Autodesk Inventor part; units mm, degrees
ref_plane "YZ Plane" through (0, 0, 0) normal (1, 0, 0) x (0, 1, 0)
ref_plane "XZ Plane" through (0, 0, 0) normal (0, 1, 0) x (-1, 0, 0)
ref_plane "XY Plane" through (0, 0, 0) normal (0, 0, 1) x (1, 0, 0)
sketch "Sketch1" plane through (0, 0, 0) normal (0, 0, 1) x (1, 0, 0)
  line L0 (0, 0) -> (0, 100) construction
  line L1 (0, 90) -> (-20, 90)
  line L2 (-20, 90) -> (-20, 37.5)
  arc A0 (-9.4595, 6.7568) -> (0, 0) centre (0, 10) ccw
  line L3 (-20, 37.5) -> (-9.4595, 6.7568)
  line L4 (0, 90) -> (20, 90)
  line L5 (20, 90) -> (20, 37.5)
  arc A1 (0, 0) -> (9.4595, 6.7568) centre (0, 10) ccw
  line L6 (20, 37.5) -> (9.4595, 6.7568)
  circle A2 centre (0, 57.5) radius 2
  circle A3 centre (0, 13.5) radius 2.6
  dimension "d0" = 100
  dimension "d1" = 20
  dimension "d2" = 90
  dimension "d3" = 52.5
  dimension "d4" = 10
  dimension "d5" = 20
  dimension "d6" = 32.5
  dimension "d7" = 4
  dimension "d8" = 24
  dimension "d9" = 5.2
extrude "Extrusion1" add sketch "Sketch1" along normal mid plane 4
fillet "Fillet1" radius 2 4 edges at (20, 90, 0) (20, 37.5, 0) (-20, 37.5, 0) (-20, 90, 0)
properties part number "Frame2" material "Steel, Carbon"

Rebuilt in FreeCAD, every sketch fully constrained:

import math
import FreeCAD as App
import Part
import Sketcher
from FreeCAD import Vector


def edges_at(feature, points):
    """Names of the edges that pass closest to the given points."""
    edges = feature.Shape.Edges
    near = lambda p: min(range(len(edges)), key=lambda i: edges[i].distToShape(Part.Vertex(*p))[0])
    return sorted({f"Edge{near(p) + 1}" for p in points})

doc = App.newDocument("Part")
params = doc.addObject("Spreadsheet::Sheet", "Params")
for row, (alias, value) in enumerate([
    ("sketch1_diameter", "4 mm"),
    ("sketch1_radius", "10 mm"),
    ("sketch1_diameter2", "5.2 mm"),
    ("sketch1_height", "52.5 mm"),
    ("pad1_length", "4 mm"),
    ("fillet_radius", "2 mm"),
], start=1):
    params.set(f"A{row}", alias)
    params.set(f"B{row}", "=" + value)
    params.setAlias(f"B{row}", alias)

body = doc.addObject("PartDesign::Body", "Body")

# Sketch on XY plane
sketch1 = body.newObject("Sketcher::SketchObject", "Sketch")
sketch1.AttachmentSupport = (doc.getObject("XY_Plane"), [""])
sketch1.MapMode = "FlatFace"
sketch1.addGeometry(Part.LineSegment(Vector(20, 90, 0), Vector(-20, 90, 0)), False)
sketch1.addGeometry(Part.LineSegment(Vector(-20, 90, 0), Vector(-20, 37.5, 0)), False)
sketch1.addGeometry(Part.LineSegment(Vector(-20, 37.5, 0), Vector(-9.5, 6.8, 0)), False)
sketch1.addGeometry(Part.ArcOfCircle(Part.Circle(Vector(0, 10, 0), Vector(0, 0, 1), 10), math.radians(-161), math.radians(-90)), False)
sketch1.addGeometry(Part.ArcOfCircle(Part.Circle(Vector(0, 10, 0), Vector(0, 0, 1), 10), math.radians(-90), math.radians(-19)), False)
sketch1.addGeometry(Part.LineSegment(Vector(9.5, 6.8, 0), Vector(20, 37.5, 0)), False)
sketch1.addGeometry(Part.LineSegment(Vector(20, 37.5, 0), Vector(20, 90, 0)), False)
sketch1.addGeometry(Part.Circle(Vector(0, 13.5, 0), Vector(0, 0, 1), 2.6), False)
sketch1.addGeometry(Part.Circle(Vector(0, 57.5, 0), Vector(0, 0, 1), 2), False)
sketch1.addConstraint(Sketcher.Constraint("Coincident", 0, 2, 1, 1))
sketch1.addConstraint(Sketcher.Constraint("Coincident", 1, 2, 2, 1))
sketch1.addConstraint(Sketcher.Constraint("Tangent", 2, 2, 3, 1))
sketch1.addConstraint(Sketcher.Constraint("Tangent", 3, 2, 4, 1))
sketch1.addConstraint(Sketcher.Constraint("Tangent", 4, 2, 5, 1))
sketch1.addConstraint(Sketcher.Constraint("Coincident", 5, 2, 6, 1))
sketch1.addConstraint(Sketcher.Constraint("Coincident", 6, 2, 0, 1))
sketch1.addConstraint(Sketcher.Constraint("Horizontal", 0))
sketch1.addConstraint(Sketcher.Constraint("Vertical", 1))
sketch1.addConstraint(Sketcher.Constraint("Vertical", 6))
sketch1.addConstraint(Sketcher.Constraint("Coincident", 3, 2, -1, 1))
sketch1.addConstraint(Sketcher.Constraint("Equal", 3, 4))
sketch1.addConstraint(Sketcher.Constraint("Symmetric", 2, 2, 4, 2, -2))
sketch1.addConstraint(Sketcher.Constraint("PointOnObject", 7, 3, -2))
sketch1.addConstraint(Sketcher.Constraint("PointOnObject", 8, 3, -2))
sketch1.addConstraint(Sketcher.Constraint("Horizontal", 1, 2, 5, 2))
sketch1.addConstraint(Sketcher.Constraint("Diameter", 8, 4.0))
sketch1.addConstraint(Sketcher.Constraint("Radius", 3, 10.0))
sketch1.addConstraint(Sketcher.Constraint("Diameter", 7, 5.2))
sketch1.addConstraint(Sketcher.Constraint("DistanceY", 1, 2, 1, 1, 52.5))
sketch1.addConstraint(Sketcher.Constraint("DistanceX", 0, 2, -1, 1, 20.0))
sketch1.addConstraint(Sketcher.Constraint("DistanceY", -1, 1, 0, 2, 90.0))
sketch1.addConstraint(Sketcher.Constraint("DistanceY", 1, 2, 8, 3, 20.0))
sketch1.addConstraint(Sketcher.Constraint("DistanceY", 7, 3, 1, 2, 24.0))
sketch1.setExpression("Constraints[16]", "Params.sketch1_diameter")
sketch1.setExpression("Constraints[17]", "Params.sketch1_radius")
sketch1.setExpression("Constraints[18]", "Params.sketch1_diameter2")
sketch1.setExpression("Constraints[19]", "Params.sketch1_height")
pad1 = body.newObject("PartDesign::Pad", "Pad")
pad1.Profile = sketch1
pad1.setExpression("Length", "Params.pad1_length")
pad1.Midplane = True
doc.recompute()

fillet = body.newObject("PartDesign::Fillet", "Fillet")
fillet.Base = (pad1, edges_at(pad1, [
    (20, 90, 0),
    (20, 37.5, 0),
    (-20, 37.5, 0),
    (-20, 90, 0),
]))
fillet.setExpression("Radius", "Params.fillet_radius")

doc.recompute()
